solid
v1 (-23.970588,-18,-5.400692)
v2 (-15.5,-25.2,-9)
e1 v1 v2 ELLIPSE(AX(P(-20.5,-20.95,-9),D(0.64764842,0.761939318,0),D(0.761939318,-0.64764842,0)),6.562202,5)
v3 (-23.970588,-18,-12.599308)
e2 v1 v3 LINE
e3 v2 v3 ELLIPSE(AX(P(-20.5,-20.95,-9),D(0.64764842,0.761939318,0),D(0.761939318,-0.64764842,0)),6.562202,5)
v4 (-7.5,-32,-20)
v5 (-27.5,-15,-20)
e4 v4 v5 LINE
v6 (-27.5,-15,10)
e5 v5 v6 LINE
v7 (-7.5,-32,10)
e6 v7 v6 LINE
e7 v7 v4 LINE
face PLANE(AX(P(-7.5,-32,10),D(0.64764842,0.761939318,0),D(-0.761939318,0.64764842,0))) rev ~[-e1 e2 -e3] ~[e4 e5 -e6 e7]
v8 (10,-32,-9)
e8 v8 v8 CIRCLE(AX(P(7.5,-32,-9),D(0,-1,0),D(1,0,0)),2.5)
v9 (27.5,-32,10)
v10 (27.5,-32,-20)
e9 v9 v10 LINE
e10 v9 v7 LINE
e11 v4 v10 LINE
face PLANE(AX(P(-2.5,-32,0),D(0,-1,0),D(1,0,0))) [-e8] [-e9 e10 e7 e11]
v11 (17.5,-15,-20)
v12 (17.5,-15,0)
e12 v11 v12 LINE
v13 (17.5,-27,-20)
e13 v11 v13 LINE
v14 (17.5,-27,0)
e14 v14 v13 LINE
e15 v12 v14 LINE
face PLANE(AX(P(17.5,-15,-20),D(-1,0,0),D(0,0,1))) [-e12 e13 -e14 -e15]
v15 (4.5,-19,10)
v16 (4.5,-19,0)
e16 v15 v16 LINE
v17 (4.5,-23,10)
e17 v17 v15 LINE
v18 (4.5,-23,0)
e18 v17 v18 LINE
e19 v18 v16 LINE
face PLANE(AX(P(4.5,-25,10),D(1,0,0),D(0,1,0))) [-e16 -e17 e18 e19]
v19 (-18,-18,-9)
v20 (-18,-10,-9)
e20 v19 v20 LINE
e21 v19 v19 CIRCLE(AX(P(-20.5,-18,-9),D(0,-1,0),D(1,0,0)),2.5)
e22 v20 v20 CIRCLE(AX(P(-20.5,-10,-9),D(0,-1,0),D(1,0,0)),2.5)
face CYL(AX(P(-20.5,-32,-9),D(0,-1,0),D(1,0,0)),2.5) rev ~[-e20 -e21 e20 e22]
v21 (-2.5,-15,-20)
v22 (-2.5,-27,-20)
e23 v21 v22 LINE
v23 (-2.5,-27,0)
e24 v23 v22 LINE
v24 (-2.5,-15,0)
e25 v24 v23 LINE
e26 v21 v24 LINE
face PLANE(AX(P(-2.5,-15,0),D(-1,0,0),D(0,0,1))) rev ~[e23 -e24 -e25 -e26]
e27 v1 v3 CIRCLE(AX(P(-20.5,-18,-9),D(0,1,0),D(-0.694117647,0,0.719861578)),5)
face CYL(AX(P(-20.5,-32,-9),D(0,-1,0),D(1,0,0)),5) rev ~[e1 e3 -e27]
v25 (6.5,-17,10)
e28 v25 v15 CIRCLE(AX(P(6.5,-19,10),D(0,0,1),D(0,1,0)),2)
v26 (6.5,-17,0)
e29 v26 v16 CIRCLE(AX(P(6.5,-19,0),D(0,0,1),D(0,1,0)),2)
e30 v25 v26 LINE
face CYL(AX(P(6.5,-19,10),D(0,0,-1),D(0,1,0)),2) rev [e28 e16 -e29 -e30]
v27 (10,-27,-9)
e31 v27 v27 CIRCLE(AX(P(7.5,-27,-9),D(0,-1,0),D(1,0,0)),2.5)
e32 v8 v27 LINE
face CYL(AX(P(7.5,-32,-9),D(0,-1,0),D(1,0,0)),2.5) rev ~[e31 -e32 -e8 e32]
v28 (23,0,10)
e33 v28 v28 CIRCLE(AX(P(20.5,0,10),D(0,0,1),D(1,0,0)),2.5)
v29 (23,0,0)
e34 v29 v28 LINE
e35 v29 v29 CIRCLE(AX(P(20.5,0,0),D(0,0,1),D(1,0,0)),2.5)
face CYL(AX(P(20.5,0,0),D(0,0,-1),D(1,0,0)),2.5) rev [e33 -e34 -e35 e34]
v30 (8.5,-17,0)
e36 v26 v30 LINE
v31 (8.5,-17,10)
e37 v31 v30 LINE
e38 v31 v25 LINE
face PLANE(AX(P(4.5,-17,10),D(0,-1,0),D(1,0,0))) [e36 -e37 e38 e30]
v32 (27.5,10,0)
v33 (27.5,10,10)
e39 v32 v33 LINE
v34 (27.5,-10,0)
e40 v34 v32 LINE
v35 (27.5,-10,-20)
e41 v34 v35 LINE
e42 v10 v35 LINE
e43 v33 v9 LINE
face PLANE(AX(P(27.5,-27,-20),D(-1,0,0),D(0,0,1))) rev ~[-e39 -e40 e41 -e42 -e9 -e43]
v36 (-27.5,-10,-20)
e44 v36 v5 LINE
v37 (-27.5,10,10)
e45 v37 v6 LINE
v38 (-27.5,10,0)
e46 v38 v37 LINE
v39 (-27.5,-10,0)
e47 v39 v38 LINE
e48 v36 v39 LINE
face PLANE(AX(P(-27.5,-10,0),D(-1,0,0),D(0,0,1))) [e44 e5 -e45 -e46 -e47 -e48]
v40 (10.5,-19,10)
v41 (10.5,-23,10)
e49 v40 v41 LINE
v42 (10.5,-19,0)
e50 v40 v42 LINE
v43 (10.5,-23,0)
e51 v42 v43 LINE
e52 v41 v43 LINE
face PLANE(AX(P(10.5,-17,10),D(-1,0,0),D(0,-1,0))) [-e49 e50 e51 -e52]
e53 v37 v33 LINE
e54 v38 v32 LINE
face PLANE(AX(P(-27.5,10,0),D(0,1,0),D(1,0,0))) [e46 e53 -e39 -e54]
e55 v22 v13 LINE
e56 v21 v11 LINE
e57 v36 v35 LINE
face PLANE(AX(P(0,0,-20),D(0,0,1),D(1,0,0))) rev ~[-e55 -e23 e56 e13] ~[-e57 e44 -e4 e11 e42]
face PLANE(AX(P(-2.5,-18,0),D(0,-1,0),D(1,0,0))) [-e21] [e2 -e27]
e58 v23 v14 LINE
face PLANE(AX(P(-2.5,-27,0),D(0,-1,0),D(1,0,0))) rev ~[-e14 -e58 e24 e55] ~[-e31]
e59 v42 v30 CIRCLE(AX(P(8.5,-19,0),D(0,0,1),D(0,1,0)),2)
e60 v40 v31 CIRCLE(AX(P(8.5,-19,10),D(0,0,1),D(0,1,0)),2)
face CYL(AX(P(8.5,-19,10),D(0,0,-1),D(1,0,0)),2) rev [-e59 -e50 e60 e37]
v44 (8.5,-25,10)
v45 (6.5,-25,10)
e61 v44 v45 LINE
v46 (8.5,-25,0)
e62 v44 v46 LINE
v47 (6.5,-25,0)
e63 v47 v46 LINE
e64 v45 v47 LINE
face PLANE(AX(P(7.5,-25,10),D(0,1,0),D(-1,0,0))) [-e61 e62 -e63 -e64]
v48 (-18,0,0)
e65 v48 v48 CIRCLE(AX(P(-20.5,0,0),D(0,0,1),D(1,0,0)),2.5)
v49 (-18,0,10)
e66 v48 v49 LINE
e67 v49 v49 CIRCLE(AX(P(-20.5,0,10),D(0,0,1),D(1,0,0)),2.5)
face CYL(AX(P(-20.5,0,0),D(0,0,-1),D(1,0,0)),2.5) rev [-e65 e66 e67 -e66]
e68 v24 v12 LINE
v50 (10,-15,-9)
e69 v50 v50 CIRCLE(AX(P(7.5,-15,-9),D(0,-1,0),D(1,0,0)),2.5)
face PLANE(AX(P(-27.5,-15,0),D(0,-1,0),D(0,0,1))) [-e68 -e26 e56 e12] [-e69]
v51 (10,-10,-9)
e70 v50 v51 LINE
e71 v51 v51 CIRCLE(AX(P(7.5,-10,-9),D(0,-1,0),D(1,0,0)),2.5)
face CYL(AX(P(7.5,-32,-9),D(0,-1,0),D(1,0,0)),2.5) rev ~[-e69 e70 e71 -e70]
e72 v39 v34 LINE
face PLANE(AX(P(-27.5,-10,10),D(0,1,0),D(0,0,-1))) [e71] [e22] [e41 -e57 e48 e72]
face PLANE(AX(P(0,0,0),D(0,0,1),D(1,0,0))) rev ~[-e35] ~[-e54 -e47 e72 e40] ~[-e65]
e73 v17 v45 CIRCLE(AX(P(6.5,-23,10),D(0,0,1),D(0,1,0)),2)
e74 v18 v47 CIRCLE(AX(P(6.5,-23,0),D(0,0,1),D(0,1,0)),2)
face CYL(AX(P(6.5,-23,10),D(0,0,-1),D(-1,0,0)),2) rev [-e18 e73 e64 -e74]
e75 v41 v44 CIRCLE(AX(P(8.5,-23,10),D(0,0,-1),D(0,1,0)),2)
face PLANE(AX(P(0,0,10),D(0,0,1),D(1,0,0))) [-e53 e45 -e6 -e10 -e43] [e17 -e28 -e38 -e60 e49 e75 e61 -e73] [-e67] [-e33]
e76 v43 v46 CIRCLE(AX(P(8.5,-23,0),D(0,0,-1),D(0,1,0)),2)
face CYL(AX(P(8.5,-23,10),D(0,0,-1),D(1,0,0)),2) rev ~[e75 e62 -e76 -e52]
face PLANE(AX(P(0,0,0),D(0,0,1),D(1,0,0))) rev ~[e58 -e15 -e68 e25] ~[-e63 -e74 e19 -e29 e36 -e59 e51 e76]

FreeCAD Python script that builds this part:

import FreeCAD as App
import Part
import Sketcher

V = App.Vector


def edges_at(feature, points):
    """Names of the edges that pass closest to the given points."""
    edges = feature.Shape.Edges
    near = lambda p: min(range(len(edges)), key=lambda i: edges[i].distToShape(Part.Vertex(*p))[0])
    return sorted({f"Edge{near(p) + 1}" for p in points})


def add_polygon(sketch, points):
    """Adds a closed chain of lines whose ends are joined by coincident constraints."""
    first, n = sketch.GeometryCount, len(points)
    for a, b in zip(points, points[1:] + points[:1]):
        sketch.addGeometry(Part.LineSegment(App.Vector(*a, 0), App.Vector(*b, 0)), False)
    for i in range(n):
        sketch.addConstraint(Sketcher.Constraint("Coincident", first + i, 2, first + (i + 1) % n, 1))

doc = App.newDocument("Part")
body = doc.addObject("PartDesign::Body", "Body")

sketch1 = doc.addObject("Sketcher::SketchObject", "Sketch")
body.addObject(sketch1)
sketch1.AttachmentSupport = (doc.XY_Plane, [""])
sketch1.MapMode = "FlatFace"
add_polygon(sketch1, [(27.5, 10), (-27.5, 10), (-27.5, -10), (-2.5, -10), (-2.5, -27), (27.5, -27)])
sketch1.addGeometry(Part.Circle(V(-20.5, 0, 0), V(0, 0, 1), 2.5), False)
sketch1.addGeometry(Part.Circle(V(20.5, 0, 0), V(0, 0, 1), 2.5), False)
sketch1.addConstraint([
    Sketcher.Constraint("Horizontal", 0),
    Sketcher.Constraint("Vertical", 1),
    Sketcher.Constraint("Horizontal", 2),
    Sketcher.Constraint("Vertical", 3),
    Sketcher.Constraint("Horizontal", 4),
    Sketcher.Constraint("Vertical", 5),
    Sketcher.Constraint("Equal", 6, 7),
    Sketcher.Constraint("Symmetric", 6, 3, 7, 3, -1, 1),
    Sketcher.Constraint("Symmetric", 1, 2, 5, 2, -1, 1),
    Sketcher.Constraint("PointOnObject", 6, 3, -1),
    Sketcher.Constraint("Diameter", 6, 5.0),
    Sketcher.Constraint("DistanceX", 0, 2, 0, 1, 55.0),
    Sketcher.Constraint("DistanceX", 4, 1, 4, 2, 30.0),
    Sketcher.Constraint("DistanceY", 1, 2, 1, 1, 20.0),
    Sketcher.Constraint("DistanceY", 3, 2, 3, 1, 17.0),
    Sketcher.Constraint("DistanceX", 0, 2, 6, 3, 7.0),
])
pad1 = doc.addObject("PartDesign::Pad", "Pad")
body.addObject(pad1)
pad1.Profile = sketch1
pad1.Length = 10

sketch2 = doc.addObject("Sketcher::SketchObject", "Sketch001")
body.addObject(sketch2)
sketch2.AttachmentSupport = (doc.XZ_Plane, [""])
sketch2.MapMode = "FlatFace"
sketch2.AttachmentOffset = App.Placement(V(0, 0, 27), App.Rotation())
add_polygon(sketch2, [(28, -20), (28, 10), (-2, 10), (-2, -20)])
sketch2.addConstraint([
    Sketcher.Constraint("Vertical", 0),
    Sketcher.Constraint("Horizontal", 1),
    Sketcher.Constraint("Vertical", 2),
    Sketcher.Constraint("Horizontal", 3),
    Sketcher.Constraint("Equal", 3, 0),
    Sketcher.Constraint("DistanceX", 1, 2, 1, 1, 30.0),
    Sketcher.Constraint("DistanceY", -1, 1, 0, 2, 10.0),
    Sketcher.Constraint("DistanceX", -1, 1, 0, 2, 27.5),
])
pad2 = doc.addObject("PartDesign::Pad", "Pad001")
body.addObject(pad2)
pad2.Profile = sketch2
pad2.Length = 5

sketch3 = doc.addObject("Sketcher::SketchObject", "Sketch002")
body.addObject(sketch3)
sketch3.AttachmentSupport = (doc.YZ_Plane, [""])
sketch3.MapMode = "FlatFace"
sketch3.AttachmentOffset = App.Placement(V(0, 0, -27.5), App.Rotation())
add_polygon(sketch3, [(-10, 10), (-10, -20), (-15, -20), (-15, 10)])
sketch3.addConstraint([
    Sketcher.Constraint("Vertical", 0),
    Sketcher.Constraint("Horizontal", 1),
    Sketcher.Constraint("Vertical", 2),
    Sketcher.Constraint("Horizontal", 3),
    Sketcher.Constraint("DistanceX", 1, 2, 1, 1, 5.0),
    Sketcher.Constraint("DistanceY", 0, 2, 0, 1, 30.0),
    Sketcher.Constraint("DistanceX", 0, 2, -1, 1, 10.0),
    Sketcher.Constraint("DistanceY", 0, 2, -1, 1, 20.0),
])
pad3 = doc.addObject("PartDesign::Pad", "Pad002")
body.addObject(pad3)
pad3.Profile = sketch3
pad3.Length = 55

sketch4 = doc.addObject("Sketcher::SketchObject", "Sketch003")
body.addObject(sketch4)
sketch4.AttachmentSupport = (doc.XZ_Plane, [""])
sketch4.MapMode = "FlatFace"
sketch4.AttachmentOffset = App.Placement(V(0, 0, 32), App.Rotation())
sketch4.addGeometry(Part.Circle(V(7.5, -9, 0), V(0, 0, 1), 2.5), False)
sketch4.addConstraint([
    Sketcher.Constraint("Diameter", 0, 5.0),
    Sketcher.Constraint("DistanceY", 0, 3, -1, 1, 9.0),
    Sketcher.Constraint("DistanceX", -1, 1, 0, 3, 7.5),
])
pocket1 = doc.addObject("PartDesign::Pocket", "Pocket")
body.addObject(pocket1)
pocket1.Profile = sketch4
pocket1.Length = 22

sketch5 = doc.addObject("Sketcher::SketchObject", "Sketch004")
body.addObject(sketch5)
sketch5.AttachmentSupport = (doc.XZ_Plane, [""])
sketch5.MapMode = "FlatFace"
sketch5.AttachmentOffset = App.Placement(V(0, 0, 15), App.Rotation())
add_polygon(sketch5, [(-2, 10), (-8, 10), (-8, -20), (-2, -20)])
add_polygon(sketch5, [(28, 0), (18, 0), (18, -20), (28, -20)])
sketch5.addConstraint([
    Sketcher.Constraint("Horizontal", 0),
    Sketcher.Constraint("Vertical", 1),
    Sketcher.Constraint("Horizontal", 2),
    Sketcher.Constraint("Vertical", 3),
    Sketcher.Constraint("Horizontal", 4),
    Sketcher.Constraint("Vertical", 5),
    Sketcher.Constraint("Horizontal", 6),
    Sketcher.Constraint("Vertical", 7),
    Sketcher.Constraint("PointOnObject", 4, 2, -1),
    Sketcher.Constraint("Horizontal", 2, 2, 5, 2),
    Sketcher.Constraint("DistanceX", 0, 2, 0, 1, 5.0),
    Sketcher.Constraint("DistanceX", 4, 2, 4, 1, 10.0),
    Sketcher.Constraint("DistanceY", -1, 1, 0, 2, 10.0),
    Sketcher.Constraint("DistanceY", 1, 2, 1, 1, 30.0),
    Sketcher.Constraint("DistanceX", 3, 2, 4, 2, 20.0),
    Sketcher.Constraint("DistanceX", 0, 2, -1, 1, 7.5),
])
pad4 = doc.addObject("PartDesign::Pad", "Pad003")
body.addObject(pad4)
pad4.Profile = sketch5
pad4.Length = 17

sketch6 = doc.addObject("Sketcher::SketchObject", "Sketch005")
body.addObject(sketch6)
sketch6.AttachmentSupport = (doc.XY_Plane, [""])
sketch6.MapMode = "FlatFace"
sketch6.AttachmentOffset = App.Placement(V(0, 0, 10), App.Rotation())
add_polygon(sketch6, [(-28, -15), (-8, -32), (-8, -15)])
sketch6.addConstraint([
    Sketcher.Constraint("Vertical", 1),
    Sketcher.Constraint("Horizontal", 2),
    Sketcher.Constraint("DistanceX", 2, 2, 2, 1, 20.0),
    Sketcher.Constraint("DistanceY", 1, 1, 1, 2, 17.0),
    Sketcher.Constraint("DistanceY", 0, 2, -1, 1, 32.0),
    Sketcher.Constraint("DistanceX", 0, 2, -1, 1, 7.5),
])
pad5 = doc.addObject("PartDesign::Pad", "Pad004")
body.addObject(pad5)
pad5.Profile = sketch6
pad5.Length = 30
pad5.Reversed = True

sketch7 = doc.addObject("Sketcher::SketchObject", "Sketch006")
body.addObject(sketch7)
sketch7.AttachmentSupport = (doc.XZ_Plane, [""])
sketch7.MapMode = "FlatFace"
sketch7.AttachmentOffset = App.Placement(V(0, 0, 32), App.Rotation())
sketch7.addGeometry(Part.Circle(V(-20.5, -9, 0), V(0, 0, 1), 2.5), False)
sketch7.addConstraint([
    Sketcher.Constraint("Diameter", 0, 5.0),
    Sketcher.Constraint("DistanceY", 0, 3, -1, 1, 9.0),
    Sketcher.Constraint("DistanceX", 0, 3, -1, 1, 20.5),
])
pocket2 = doc.addObject("PartDesign::Pocket", "Pocket001")
body.addObject(pocket2)
pocket2.Profile = sketch7
pocket2.Length = 22

sketch8 = doc.addObject("Sketcher::SketchObject", "Sketch007")
body.addObject(sketch8)
sketch8.AttachmentSupport = (doc.XZ_Plane, [""])
sketch8.MapMode = "FlatFace"
sketch8.AttachmentOffset = App.Placement(V(0, 0, 32), App.Rotation())
sketch8.addGeometry(Part.Circle(V(-20, -9, 0), V(0, 0, 1), 5), False)
sketch8.addConstraint([
    Sketcher.Constraint("Diameter", 0, 10.0),
    Sketcher.Constraint("DistanceY", 0, 3, -1, 1, 9.0),
    Sketcher.Constraint("DistanceX", 0, 3, -1, 1, 20.5),
])
pocket3 = doc.addObject("PartDesign::Pocket", "Pocket002")
body.addObject(pocket3)
pocket3.Profile = sketch8
pocket3.Length = 14

sketch9 = doc.addObject("Sketcher::SketchObject", "Sketch008")
body.addObject(sketch9)
sketch9.AttachmentSupport = (doc.XY_Plane, [""])
sketch9.MapMode = "FlatFace"
sketch9.AttachmentOffset = App.Placement(V(0, 0, 10), App.Rotation())
add_polygon(sketch9, [(4, -25), (10, -25), (10, -17), (4, -17)])
sketch9.addConstraint([
    Sketcher.Constraint("Horizontal", 0),
    Sketcher.Constraint("Vertical", 1),
    Sketcher.Constraint("Horizontal", 2),
    Sketcher.Constraint("Vertical", 3),
    Sketcher.Constraint("DistanceY", 1, 1, 1, 2, 8.0),
    Sketcher.Constraint("DistanceX", 0, 1, 0, 2, 6.0),
    Sketcher.Constraint("DistanceY", 0, 2, -1, 1, 25.0),
    Sketcher.Constraint("DistanceX", -1, 1, 0, 2, 10.5),
])
pocket4 = doc.addObject("PartDesign::Pocket", "Pocket003")
body.addObject(pocket4)
pocket4.Profile = sketch9
pocket4.Length = 10
doc.recompute()

fillet = doc.addObject("PartDesign::Fillet", "Fillet")
body.addObject(fillet)
fillet.Base = (pocket4, edges_at(pocket4, [
    (10.5, -17, 5),
    (4.5, -17, 5),
    (10.5, -25, 5),
    (4.5, -25, 5),
]))
fillet.Radius = 2

doc.recompute()
